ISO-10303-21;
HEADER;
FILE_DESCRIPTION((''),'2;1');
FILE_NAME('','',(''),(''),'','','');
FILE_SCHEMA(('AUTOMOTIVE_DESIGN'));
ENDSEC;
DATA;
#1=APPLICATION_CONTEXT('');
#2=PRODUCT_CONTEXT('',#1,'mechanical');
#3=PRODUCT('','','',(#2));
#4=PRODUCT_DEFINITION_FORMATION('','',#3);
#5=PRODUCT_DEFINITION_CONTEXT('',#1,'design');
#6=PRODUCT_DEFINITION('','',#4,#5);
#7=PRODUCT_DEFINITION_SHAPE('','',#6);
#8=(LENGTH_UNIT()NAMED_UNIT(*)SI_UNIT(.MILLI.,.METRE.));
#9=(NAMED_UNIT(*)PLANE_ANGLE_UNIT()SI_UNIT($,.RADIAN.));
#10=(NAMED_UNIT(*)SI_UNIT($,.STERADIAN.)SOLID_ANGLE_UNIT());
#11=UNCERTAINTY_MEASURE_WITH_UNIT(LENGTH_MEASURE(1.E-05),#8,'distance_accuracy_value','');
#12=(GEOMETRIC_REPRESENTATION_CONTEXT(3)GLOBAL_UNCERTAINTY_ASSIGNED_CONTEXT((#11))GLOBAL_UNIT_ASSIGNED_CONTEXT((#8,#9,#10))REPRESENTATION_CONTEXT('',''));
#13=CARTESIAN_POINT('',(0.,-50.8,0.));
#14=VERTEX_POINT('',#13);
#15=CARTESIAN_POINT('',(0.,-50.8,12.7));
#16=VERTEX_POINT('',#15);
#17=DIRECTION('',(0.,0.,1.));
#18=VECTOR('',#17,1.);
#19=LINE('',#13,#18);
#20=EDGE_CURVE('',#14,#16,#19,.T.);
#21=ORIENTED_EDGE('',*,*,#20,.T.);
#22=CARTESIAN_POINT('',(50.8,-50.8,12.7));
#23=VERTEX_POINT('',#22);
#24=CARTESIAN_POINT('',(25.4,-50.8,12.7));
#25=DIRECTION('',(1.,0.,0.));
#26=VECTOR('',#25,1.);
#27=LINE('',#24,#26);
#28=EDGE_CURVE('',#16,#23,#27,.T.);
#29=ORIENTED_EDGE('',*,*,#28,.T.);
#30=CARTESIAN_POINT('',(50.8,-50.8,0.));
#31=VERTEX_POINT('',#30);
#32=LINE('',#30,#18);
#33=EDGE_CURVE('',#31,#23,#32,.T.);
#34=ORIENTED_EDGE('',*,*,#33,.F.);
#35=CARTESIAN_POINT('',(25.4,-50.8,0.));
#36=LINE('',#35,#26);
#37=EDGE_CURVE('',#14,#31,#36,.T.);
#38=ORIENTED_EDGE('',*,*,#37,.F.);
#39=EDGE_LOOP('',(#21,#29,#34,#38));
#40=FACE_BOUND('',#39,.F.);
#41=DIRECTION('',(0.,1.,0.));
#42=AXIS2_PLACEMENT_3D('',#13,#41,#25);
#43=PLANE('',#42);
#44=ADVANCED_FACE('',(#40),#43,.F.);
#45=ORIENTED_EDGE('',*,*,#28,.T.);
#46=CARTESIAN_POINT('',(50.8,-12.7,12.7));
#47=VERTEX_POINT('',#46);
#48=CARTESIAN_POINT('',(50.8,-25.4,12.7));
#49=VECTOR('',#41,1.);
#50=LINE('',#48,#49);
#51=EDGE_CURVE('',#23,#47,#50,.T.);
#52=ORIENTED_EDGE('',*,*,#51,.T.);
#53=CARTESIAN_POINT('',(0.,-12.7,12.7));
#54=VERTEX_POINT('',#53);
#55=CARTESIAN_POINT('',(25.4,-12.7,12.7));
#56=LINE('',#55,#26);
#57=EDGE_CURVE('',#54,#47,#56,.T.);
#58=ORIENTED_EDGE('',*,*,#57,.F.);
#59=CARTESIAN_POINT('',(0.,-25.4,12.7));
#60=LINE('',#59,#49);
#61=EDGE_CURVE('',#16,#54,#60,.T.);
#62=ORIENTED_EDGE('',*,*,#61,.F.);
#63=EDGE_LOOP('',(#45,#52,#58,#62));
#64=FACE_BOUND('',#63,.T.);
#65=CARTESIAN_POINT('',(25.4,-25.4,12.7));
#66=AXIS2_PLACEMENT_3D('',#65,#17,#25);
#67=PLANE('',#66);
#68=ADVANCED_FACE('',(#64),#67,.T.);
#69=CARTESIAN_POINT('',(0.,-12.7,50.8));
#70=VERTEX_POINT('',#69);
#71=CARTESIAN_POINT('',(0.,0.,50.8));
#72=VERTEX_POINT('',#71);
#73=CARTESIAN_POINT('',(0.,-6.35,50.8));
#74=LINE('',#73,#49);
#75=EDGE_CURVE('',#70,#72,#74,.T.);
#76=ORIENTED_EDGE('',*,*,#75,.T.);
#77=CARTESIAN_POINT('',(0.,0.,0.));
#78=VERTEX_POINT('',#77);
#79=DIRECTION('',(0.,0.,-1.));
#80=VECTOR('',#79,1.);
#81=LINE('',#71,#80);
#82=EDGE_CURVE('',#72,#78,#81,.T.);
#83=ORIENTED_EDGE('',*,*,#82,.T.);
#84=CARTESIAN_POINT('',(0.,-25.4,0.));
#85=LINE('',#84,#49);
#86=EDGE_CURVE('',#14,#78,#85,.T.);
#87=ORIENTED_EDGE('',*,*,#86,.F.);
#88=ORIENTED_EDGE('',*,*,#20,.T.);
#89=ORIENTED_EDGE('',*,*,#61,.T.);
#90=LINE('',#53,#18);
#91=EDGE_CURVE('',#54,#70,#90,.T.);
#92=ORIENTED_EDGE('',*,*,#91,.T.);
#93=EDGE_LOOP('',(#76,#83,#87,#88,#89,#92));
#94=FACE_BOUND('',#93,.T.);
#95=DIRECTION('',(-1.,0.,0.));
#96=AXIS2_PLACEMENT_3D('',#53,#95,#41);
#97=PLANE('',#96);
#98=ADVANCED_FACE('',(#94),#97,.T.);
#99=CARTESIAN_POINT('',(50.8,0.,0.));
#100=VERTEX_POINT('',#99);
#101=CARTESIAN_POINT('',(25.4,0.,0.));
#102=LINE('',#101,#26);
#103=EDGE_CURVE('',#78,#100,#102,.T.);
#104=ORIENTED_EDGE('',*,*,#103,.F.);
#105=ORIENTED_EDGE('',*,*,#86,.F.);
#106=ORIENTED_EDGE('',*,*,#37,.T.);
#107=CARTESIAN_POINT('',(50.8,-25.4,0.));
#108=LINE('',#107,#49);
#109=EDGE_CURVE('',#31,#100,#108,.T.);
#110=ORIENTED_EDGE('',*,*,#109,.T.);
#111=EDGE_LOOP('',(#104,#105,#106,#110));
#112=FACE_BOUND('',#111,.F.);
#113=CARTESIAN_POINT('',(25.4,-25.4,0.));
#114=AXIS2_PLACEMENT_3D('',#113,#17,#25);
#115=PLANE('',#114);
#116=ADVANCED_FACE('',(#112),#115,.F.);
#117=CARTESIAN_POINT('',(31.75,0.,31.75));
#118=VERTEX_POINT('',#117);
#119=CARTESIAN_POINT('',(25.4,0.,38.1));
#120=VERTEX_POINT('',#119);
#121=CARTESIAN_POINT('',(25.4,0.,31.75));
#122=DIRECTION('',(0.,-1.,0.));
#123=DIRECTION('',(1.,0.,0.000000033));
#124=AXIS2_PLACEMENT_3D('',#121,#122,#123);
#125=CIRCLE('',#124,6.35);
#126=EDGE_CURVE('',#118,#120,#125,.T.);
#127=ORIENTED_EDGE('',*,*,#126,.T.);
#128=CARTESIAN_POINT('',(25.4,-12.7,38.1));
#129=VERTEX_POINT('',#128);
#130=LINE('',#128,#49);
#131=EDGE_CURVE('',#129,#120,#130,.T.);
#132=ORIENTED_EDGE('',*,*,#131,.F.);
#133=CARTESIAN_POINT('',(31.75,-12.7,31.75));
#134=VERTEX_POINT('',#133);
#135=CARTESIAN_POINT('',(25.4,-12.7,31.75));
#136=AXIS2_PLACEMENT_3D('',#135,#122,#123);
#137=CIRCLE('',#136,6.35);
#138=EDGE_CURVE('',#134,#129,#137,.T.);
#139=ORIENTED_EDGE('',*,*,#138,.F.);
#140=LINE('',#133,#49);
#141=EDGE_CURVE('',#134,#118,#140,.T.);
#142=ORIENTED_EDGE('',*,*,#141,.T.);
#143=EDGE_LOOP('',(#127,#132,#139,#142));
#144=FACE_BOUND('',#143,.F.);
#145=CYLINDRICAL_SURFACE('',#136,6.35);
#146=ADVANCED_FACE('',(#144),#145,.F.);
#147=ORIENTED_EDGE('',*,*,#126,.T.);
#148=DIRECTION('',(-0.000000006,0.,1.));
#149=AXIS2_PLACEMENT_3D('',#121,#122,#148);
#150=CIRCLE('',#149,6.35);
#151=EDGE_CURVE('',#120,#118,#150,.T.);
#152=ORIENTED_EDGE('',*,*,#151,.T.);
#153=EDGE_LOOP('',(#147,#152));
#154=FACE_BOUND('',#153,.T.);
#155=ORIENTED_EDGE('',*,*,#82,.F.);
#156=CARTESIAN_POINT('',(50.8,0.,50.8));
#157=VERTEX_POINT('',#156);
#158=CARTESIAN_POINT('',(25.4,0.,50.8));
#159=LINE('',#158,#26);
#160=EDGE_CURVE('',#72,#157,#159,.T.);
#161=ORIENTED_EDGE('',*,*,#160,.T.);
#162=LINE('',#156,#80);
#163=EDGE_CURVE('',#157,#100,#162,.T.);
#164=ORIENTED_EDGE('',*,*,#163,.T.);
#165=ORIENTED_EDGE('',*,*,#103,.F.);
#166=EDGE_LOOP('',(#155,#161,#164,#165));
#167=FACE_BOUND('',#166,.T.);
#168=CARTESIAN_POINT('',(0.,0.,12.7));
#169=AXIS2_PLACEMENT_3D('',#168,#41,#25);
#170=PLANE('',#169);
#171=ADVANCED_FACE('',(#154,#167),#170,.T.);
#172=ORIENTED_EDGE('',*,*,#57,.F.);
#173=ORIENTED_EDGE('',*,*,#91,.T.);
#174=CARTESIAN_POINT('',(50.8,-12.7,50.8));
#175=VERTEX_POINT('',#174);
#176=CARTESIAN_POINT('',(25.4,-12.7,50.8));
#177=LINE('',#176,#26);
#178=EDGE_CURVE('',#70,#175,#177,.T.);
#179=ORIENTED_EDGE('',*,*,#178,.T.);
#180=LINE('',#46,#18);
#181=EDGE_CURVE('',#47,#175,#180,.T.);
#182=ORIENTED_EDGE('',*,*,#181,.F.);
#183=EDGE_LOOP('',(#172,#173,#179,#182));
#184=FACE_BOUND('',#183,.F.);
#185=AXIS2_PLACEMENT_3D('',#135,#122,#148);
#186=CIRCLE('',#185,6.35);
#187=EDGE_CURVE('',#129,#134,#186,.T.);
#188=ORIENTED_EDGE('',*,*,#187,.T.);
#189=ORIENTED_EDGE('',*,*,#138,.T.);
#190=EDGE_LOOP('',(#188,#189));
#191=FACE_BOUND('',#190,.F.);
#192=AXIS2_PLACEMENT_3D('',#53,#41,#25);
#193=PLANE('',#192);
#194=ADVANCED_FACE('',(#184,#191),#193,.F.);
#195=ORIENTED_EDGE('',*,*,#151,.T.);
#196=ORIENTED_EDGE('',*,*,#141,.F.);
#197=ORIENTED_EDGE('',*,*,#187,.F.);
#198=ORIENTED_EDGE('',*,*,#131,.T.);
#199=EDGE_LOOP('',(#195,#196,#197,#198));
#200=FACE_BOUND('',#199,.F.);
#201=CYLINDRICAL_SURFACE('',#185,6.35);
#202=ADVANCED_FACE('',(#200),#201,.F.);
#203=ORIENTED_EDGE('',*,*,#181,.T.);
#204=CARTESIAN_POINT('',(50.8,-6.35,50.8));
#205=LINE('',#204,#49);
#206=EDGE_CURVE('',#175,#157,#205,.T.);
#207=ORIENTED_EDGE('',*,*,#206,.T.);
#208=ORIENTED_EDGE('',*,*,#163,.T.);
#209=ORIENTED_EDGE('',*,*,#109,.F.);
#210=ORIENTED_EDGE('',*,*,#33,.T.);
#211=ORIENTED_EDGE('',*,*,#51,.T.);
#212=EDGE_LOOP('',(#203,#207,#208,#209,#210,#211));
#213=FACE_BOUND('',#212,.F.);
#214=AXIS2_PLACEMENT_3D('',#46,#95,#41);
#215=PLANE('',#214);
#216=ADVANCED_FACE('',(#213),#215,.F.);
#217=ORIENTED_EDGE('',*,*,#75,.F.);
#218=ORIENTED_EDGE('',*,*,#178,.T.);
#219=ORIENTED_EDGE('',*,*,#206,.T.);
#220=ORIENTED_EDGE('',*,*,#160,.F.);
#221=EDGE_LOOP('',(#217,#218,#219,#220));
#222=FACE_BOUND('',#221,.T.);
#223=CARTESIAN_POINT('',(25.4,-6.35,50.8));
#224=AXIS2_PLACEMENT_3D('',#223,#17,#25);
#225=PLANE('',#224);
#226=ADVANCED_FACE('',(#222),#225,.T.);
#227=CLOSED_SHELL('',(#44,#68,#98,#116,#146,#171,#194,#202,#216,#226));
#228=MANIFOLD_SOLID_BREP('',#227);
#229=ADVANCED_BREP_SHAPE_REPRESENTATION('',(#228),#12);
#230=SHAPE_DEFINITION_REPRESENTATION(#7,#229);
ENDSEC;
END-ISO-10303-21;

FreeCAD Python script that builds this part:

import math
import FreeCAD as App
import Part
import Sketcher

V = App.Vector
Q = App.Units.Quantity

doc = App.newDocument("Part")
body = doc.addObject("PartDesign::Body", "Body")

sketch1 = body.newObject("Sketcher::SketchObject", "Sketch")
sketch1.AttachmentSupport = (doc.getObject("XY_Plane"), [""])
sketch1.MapMode = "FlatFace"
sketch1.addGeometry([
    Part.LineSegment(V(0, 0, 0), V(0, -51, 0)),
    Part.LineSegment(V(0, -51, 0), V(51, -51, 0)),
    Part.LineSegment(V(51, -51, 0), V(51, 0, 0)),
    Part.LineSegment(V(51, 0, 0), V(0, 0, 0)),
], False)
sketch1.addConstraint([
    Sketcher.Constraint("Coincident", 0, 2, 1, 1),
    Sketcher.Constraint("Coincident", 1, 2, 2, 1),
    Sketcher.Constraint("Coincident", 2, 2, 3, 1),
    Sketcher.Constraint("Coincident", 3, 2, 0, 1),
    Sketcher.Constraint("Vertical", 0),
    Sketcher.Constraint("Horizontal", 1),
    Sketcher.Constraint("Vertical", 2),
    Sketcher.Constraint("Horizontal", 3),
    Sketcher.Constraint("Coincident", 3, 2, -1, 1),
    Sketcher.Constraint("Equal", 3, 0),
    Sketcher.Constraint("DistanceX", 1, 1, 1, 2, Q("2 in")),
])
pad1 = body.newObject("PartDesign::Pad", "Pad")
pad1.Profile = sketch1
pad1.Length = Q("0.5 in")

sketch2 = body.newObject("Sketcher::SketchObject", "Sketch001")
sketch2.AttachmentSupport = (doc.getObject("XY_Plane"), [""])
sketch2.MapMode = "FlatFace"
sketch2.AttachmentOffset = App.Placement(V(0, 0, 0.5 * 25.4), App.Rotation())
sketch2.addGeometry([
    Part.LineSegment(V(0, 0, 0), V(0, -13, 0)),
    Part.LineSegment(V(0, -13, 0), V(51, -13, 0)),
    Part.LineSegment(V(51, -13, 0), V(51, 0, 0)),
    Part.LineSegment(V(51, 0, 0), V(0, 0, 0)),
], False)
sketch2.addConstraint([
    Sketcher.Constraint("Coincident", 0, 2, 1, 1),
    Sketcher.Constraint("Coincident", 1, 2, 2, 1),
    Sketcher.Constraint("Coincident", 2, 2, 3, 1),
    Sketcher.Constraint("Coincident", 3, 2, 0, 1),
    Sketcher.Constraint("Vertical", 0),
    Sketcher.Constraint("Horizontal", 1),
    Sketcher.Constraint("Vertical", 2),
    Sketcher.Constraint("Horizontal", 3),
    Sketcher.Constraint("Coincident", 3, 2, -1, 1),
    Sketcher.Constraint("DistanceX", 1, 1, 1, 2, Q("2 in")),
    Sketcher.Constraint("DistanceY", 0, 2, 0, 1, Q("0.5 in")),
])
pad2 = body.newObject("PartDesign::Pad", "Pad001")
pad2.Profile = sketch2
pad2.Length = Q("1.5 in")

sketch3 = body.newObject("Sketcher::SketchObject", "Sketch002")
sketch3.AttachmentSupport = (doc.getObject("XZ_Plane"), [""])
sketch3.MapMode = "FlatFace"
sketch3.AttachmentOffset = App.Placement(V(0, 0, 0.5 * 25.4), App.Rotation())
sketch3.addGeometry([
    Part.ArcOfCircle(Part.Circle(V(25, 32, 0), V(0, 0, 1), 6), math.radians(90), math.radians(360)),
    Part.ArcOfCircle(Part.Circle(V(25, 32, 0), V(0, 0, 1), 6), math.radians(0), math.radians(90)),
], False)
sketch3.addConstraint([
    Sketcher.Constraint("Tangent", 0, 1, 1, 2),
    Sketcher.Constraint("Coincident", 1, 1, 0, 2),
    Sketcher.Constraint("Horizontal", 0, 3, 1, 1),
    Sketcher.Constraint("Vertical", 1, 3, 0, 1),
    Sketcher.Constraint("Radius", 0, Q("0.25 in")),
    Sketcher.Constraint("DistanceX", -1, 1, 0, 3, Q("1 in")),
    Sketcher.Constraint("DistanceY", -1, 1, 0, 1, Q("1.5 in")),
])
pocket1 = body.newObject("PartDesign::Pocket", "Pocket")
pocket1.Profile = sketch3
pocket1.Length = Q("2.2 in")

doc.recompute()
